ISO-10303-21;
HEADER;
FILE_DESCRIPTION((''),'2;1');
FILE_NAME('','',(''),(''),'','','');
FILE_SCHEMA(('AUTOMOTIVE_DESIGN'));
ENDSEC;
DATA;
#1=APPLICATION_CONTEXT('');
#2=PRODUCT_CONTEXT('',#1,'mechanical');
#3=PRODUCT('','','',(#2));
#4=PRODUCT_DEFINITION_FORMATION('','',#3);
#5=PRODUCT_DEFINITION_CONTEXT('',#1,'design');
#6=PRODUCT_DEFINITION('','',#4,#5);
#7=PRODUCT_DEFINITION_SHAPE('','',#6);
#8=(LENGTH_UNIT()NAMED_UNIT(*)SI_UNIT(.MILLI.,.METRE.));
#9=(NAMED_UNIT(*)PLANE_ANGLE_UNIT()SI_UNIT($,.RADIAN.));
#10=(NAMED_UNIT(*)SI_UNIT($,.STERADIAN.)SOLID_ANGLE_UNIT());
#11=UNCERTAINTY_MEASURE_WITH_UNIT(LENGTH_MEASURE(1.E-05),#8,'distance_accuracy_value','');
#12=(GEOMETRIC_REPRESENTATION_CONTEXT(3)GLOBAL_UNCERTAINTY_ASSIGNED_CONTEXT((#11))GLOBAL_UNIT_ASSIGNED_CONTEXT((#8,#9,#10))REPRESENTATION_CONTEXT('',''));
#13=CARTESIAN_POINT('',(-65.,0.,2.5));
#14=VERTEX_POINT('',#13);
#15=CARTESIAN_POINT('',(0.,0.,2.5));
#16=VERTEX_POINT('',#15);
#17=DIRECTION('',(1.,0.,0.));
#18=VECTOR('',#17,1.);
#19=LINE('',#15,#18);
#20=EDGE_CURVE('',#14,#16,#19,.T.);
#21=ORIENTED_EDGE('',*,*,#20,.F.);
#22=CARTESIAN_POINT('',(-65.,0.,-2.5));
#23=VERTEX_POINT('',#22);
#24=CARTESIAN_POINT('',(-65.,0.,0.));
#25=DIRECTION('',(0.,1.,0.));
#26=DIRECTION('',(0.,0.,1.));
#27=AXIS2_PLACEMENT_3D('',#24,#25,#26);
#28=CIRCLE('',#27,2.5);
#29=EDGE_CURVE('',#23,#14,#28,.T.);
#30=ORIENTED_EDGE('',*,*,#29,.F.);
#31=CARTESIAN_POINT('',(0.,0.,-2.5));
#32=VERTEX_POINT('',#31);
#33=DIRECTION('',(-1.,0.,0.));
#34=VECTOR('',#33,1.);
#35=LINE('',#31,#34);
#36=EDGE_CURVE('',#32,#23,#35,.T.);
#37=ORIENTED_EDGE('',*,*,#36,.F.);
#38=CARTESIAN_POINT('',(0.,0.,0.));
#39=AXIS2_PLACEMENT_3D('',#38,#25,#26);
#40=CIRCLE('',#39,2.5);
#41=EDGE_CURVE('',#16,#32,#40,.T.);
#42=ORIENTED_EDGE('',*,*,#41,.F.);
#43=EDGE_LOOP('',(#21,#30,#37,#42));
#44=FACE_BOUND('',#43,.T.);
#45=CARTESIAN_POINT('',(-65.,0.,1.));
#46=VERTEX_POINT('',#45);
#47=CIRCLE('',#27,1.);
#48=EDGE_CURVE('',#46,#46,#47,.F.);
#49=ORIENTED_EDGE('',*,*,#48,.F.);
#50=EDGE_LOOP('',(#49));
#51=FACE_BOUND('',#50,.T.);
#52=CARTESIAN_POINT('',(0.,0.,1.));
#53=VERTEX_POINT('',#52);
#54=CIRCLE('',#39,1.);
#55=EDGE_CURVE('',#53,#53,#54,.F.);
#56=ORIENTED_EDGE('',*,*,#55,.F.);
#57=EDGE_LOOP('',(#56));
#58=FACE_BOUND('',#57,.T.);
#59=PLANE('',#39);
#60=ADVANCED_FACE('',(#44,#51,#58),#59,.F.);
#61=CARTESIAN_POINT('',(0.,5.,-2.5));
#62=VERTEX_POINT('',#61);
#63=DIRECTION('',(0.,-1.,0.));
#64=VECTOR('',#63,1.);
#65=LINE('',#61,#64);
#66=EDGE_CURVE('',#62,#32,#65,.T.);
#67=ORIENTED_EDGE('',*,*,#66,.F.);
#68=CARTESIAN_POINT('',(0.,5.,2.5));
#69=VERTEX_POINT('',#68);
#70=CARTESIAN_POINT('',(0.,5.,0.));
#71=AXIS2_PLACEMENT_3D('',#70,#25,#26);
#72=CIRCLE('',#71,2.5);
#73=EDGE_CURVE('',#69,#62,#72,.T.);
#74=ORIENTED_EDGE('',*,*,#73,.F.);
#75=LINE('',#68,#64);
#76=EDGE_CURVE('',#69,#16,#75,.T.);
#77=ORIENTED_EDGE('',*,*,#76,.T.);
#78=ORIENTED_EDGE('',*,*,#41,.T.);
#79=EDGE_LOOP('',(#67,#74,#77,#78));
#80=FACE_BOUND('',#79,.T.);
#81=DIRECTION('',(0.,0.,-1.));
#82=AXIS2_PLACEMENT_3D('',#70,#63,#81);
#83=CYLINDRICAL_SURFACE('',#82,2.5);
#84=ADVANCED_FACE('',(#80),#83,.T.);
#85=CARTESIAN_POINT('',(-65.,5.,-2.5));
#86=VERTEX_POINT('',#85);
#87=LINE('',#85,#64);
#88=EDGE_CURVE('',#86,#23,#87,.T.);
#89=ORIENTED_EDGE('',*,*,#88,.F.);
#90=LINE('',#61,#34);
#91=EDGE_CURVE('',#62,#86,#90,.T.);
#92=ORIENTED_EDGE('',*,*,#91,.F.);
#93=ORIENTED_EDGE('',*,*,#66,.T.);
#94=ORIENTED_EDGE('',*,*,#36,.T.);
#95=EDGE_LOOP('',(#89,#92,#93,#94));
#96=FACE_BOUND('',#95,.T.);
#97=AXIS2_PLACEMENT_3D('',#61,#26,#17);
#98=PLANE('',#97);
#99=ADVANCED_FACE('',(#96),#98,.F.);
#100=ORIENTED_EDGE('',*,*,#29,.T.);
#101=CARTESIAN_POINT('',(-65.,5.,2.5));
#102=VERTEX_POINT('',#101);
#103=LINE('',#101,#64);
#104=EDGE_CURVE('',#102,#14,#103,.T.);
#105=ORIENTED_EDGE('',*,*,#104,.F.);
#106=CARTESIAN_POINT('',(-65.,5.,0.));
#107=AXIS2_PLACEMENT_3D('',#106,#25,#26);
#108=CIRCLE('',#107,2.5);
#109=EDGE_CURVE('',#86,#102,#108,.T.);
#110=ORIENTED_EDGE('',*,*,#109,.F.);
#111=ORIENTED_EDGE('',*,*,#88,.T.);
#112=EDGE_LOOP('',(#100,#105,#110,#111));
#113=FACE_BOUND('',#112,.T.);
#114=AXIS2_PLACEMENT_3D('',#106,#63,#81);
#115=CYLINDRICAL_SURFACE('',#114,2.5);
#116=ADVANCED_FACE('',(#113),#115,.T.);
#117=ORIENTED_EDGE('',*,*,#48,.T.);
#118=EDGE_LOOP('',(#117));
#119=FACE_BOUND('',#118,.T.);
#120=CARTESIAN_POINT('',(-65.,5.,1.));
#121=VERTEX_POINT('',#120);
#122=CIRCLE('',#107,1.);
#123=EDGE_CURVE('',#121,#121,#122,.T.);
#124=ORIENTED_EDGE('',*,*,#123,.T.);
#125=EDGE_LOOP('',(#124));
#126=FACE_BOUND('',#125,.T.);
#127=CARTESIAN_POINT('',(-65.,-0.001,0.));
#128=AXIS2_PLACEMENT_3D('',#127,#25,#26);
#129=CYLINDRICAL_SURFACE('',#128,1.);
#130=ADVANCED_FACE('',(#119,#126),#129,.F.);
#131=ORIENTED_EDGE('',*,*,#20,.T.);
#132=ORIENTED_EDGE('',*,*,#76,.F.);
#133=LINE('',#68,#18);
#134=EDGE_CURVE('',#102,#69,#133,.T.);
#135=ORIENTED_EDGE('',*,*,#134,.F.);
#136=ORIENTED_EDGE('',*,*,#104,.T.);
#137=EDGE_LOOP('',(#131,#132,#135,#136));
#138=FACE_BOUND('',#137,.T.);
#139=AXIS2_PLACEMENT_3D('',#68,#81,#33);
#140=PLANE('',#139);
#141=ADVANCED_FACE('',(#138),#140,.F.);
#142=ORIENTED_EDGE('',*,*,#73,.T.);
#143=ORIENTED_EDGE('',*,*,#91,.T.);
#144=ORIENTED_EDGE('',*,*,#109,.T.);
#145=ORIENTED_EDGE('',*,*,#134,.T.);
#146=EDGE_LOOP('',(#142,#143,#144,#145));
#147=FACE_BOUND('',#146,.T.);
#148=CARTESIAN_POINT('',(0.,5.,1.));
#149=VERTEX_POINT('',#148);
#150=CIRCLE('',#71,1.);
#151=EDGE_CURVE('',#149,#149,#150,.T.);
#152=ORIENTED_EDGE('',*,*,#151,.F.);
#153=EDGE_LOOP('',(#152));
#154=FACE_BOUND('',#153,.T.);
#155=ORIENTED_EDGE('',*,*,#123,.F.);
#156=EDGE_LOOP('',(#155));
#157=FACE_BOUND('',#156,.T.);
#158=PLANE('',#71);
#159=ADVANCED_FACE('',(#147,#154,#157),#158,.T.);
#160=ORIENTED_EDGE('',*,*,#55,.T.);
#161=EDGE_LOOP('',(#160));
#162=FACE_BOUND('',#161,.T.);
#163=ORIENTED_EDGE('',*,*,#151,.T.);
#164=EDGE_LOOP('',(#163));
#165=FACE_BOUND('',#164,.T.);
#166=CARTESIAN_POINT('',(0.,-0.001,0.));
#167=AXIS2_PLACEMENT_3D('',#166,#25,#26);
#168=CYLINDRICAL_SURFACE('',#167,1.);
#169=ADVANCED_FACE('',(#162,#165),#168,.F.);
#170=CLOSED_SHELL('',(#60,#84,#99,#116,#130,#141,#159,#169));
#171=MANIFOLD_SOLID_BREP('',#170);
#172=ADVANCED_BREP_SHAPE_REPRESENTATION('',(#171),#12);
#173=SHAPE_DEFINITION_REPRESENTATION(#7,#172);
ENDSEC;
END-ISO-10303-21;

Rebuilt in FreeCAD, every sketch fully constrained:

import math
import FreeCAD as App
import Part
import Sketcher
from FreeCAD import Vector

doc = App.newDocument("Part")
body = doc.addObject("PartDesign::Body", "Body")

# Sketch on XZ plane
sketch1 = body.newObject("Sketcher::SketchObject", "Sketch")
sketch1.AttachmentSupport = (doc.getObject("XZ_Plane"), [""])
sketch1.MapMode = "FlatFace"
sketch1.addGeometry([
    Part.LineSegment(Vector(-65, 2.5, 0), Vector(0, 2.5, 0)),
    Part.ArcOfCircle(Part.Circle(Vector(0, 0, 0), Vector(0, 0, 1), 2.5), math.radians(-90), math.radians(90)),
    Part.LineSegment(Vector(0, -2.5, 0), Vector(-65, -2.5, 0)),
    Part.ArcOfCircle(Part.Circle(Vector(-65, 0, 0), Vector(0, 0, 1), 2.5), math.radians(90), math.radians(270)),
], False)
sketch1.addConstraint([
    Sketcher.Constraint("Tangent", 0, 2, 1, 2),
    Sketcher.Constraint("Tangent", 1, 1, 2, 1),
    Sketcher.Constraint("Tangent", 2, 2, 3, 2),
    Sketcher.Constraint("Tangent", 3, 1, 0, 1),
    Sketcher.Constraint("Horizontal", 0),
    Sketcher.Constraint("Horizontal", 2),
    Sketcher.Constraint("Coincident", 1, 3, -1, 1),
    Sketcher.Constraint("Radius", 1, 2.5),
    Sketcher.Constraint("DistanceX", 0, 1, 0, 2, 65.0),
])
pad1 = body.newObject("PartDesign::Pad", "Pad")
pad1.Profile = sketch1
pad1.Length = 5
pad1.Reversed = True

# Sketch on XZ plane
sketch2 = body.newObject("Sketcher::SketchObject", "Sketch001")
sketch2.AttachmentSupport = (doc.getObject("XZ_Plane"), [""])
sketch2.MapMode = "FlatFace"
sketch2.AttachmentOffset = App.Placement(Vector(0, 0, -5), App.Rotation())
sketch2.addGeometry(Part.Circle(Vector(-65, 0, 0), Vector(0, 0, 1), 1), False)
sketch2.addConstraint([
    Sketcher.Constraint("PointOnObject", 0, 3, -1),
    Sketcher.Constraint("Diameter", 0, 2.0),
    Sketcher.Constraint("DistanceX", 0, 3, -1, 1, 65.0),
])
pocket1 = body.newObject("PartDesign::Pocket", "Pocket")
pocket1.Profile = sketch2
pocket1.Type = "UpToFirst"
pocket1.Reversed = True

# Sketch on XZ plane
sketch3 = body.newObject("Sketcher::SketchObject", "Sketch002")
sketch3.AttachmentSupport = (doc.getObject("XZ_Plane"), [""])
sketch3.MapMode = "FlatFace"
sketch3.AttachmentOffset = App.Placement(Vector(0, 0, -5), App.Rotation())
sketch3.addGeometry(Part.Circle(Vector(0, 0, 0), Vector(0, 0, 1), 1), False)
sketch3.addConstraint([
    Sketcher.Constraint("Coincident", 0, 3, -1, 1),
    Sketcher.Constraint("Diameter", 0, 2.0),
])
pocket2 = body.newObject("PartDesign::Pocket", "Pocket001")
pocket2.Profile = sketch3
pocket2.Type = "UpToFirst"
pocket2.Reversed = True

doc.recompute()
